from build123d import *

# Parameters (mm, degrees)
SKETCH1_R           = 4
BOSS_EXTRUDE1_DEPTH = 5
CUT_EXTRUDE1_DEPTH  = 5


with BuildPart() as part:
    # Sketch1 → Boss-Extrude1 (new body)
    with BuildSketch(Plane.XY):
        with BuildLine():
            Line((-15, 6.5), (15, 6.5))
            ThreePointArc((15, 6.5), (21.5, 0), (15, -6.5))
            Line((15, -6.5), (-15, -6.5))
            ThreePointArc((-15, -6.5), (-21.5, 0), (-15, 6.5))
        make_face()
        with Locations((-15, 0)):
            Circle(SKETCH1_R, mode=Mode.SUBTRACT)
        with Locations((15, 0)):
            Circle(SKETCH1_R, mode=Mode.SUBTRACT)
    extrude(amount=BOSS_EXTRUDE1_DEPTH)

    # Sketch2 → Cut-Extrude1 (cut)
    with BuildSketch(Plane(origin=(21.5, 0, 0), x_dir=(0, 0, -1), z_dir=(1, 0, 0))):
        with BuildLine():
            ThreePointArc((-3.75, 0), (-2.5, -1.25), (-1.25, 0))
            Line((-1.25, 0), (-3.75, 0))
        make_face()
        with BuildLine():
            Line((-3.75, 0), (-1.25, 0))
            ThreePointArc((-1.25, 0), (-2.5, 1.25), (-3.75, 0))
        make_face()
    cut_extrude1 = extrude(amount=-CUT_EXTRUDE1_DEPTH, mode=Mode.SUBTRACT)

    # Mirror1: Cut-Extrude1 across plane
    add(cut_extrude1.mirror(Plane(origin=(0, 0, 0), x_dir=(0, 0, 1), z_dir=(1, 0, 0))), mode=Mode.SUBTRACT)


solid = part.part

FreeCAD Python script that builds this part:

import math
import FreeCAD as App
import Part
import Sketcher
Q = App.Units.Quantity

doc = App.newDocument("Part")
body = doc.addObject("PartDesign::Body", "Body")

sketch1 = body.newObject("Sketcher::SketchObject", "Sketch")
sketch1.AttachmentSupport = (doc.getObject("XY_Plane"), [""])
sketch1.MapMode = "FlatFace"
sketch1.addGeometry(Part.LineSegment(App.Vector(15, 6.5, 0), App.Vector(-15, 6.5, 0)), False)
sketch1.addGeometry(Part.ArcOfCircle(Part.Circle(App.Vector(-15, 0, 0), App.Vector(0, 0, 1), 6.5), math.radians(90), math.radians(270)), False)
sketch1.addGeometry(Part.LineSegment(App.Vector(-15, -6.5, 0), App.Vector(15, -6.5, 0)), False)
sketch1.addGeometry(Part.ArcOfCircle(Part.Circle(App.Vector(15, 0, 0), App.Vector(0, 0, 1), 6.5), math.radians(-90), math.radians(90)), False)
sketch1.addGeometry(Part.Circle(App.Vector(15, 0, 0), App.Vector(0, 0, 1), 4), False)
sketch1.addGeometry(Part.Circle(App.Vector(-15, 0, 0), App.Vector(0, 0, 1), 4), False)
sketch1.addConstraint(Sketcher.Constraint("Tangent", 0, 2, 1, 1))
sketch1.addConstraint(Sketcher.Constraint("Tangent", 1, 2, 2, 1))
sketch1.addConstraint(Sketcher.Constraint("Tangent", 2, 2, 3, 1))
sketch1.addConstraint(Sketcher.Constraint("Tangent", 3, 2, 0, 1))
sketch1.addConstraint(Sketcher.Constraint("Horizontal", 0))
sketch1.addConstraint(Sketcher.Constraint("Horizontal", 2))
sketch1.addConstraint(Sketcher.Constraint("Coincident", 4, 3, 3, 3))
sketch1.addConstraint(Sketcher.Constraint("Coincident", 5, 3, 1, 3))
sketch1.addConstraint(Sketcher.Constraint("Equal", 4, 5))
sketch1.addConstraint(Sketcher.Constraint("Symmetric", 1, 3, 3, 3, -1, 1))
sketch1.addConstraint(Sketcher.Constraint("Diameter", 4, Q("8 mm")))
sketch1.addConstraint(Sketcher.Constraint("Radius", 1, Q("6.5 mm")))
sketch1.addConstraint(Sketcher.Constraint("DistanceX", 0, 2, 0, 1, Q("30 mm")))
pad1 = body.newObject("PartDesign::Pad", "Pad")
pad1.Profile = sketch1
pad1.Length = 5

sketch2 = body.newObject("Sketcher::SketchObject", "Sketch001")
sketch2.AttachmentSupport = (doc.getObject("YZ_Plane"), [""])
sketch2.MapMode = "FlatFace"
sketch2.AttachmentOffset = App.Placement(App.Vector(0, 0, 21.5), App.Rotation())
sketch2.addGeometry(Part.Circle(App.Vector(0, 2.5, 0), App.Vector(0, 0, 1), 1.25), False)
sketch2.addConstraint(Sketcher.Constraint("PointOnObject", 0, 3, -2))
sketch2.addConstraint(Sketcher.Constraint("Diameter", 0, Q("2.5 mm")))
sketch2.addConstraint(Sketcher.Constraint("DistanceY", -1, 1, 0, 3, Q("2.5 mm")))
pocket1 = body.newObject("PartDesign::Pocket", "Pocket")
pocket1.Profile = sketch2
pocket1.Length = 5
doc.recompute()

mirrored = body.newObject("PartDesign::Mirrored", "Mirrored")
mirrored.Originals = [pocket1]
mirrored.MirrorPlane = (doc.getObject("YZ_Plane"), [""])
body.Tip = mirrored

doc.recompute()
